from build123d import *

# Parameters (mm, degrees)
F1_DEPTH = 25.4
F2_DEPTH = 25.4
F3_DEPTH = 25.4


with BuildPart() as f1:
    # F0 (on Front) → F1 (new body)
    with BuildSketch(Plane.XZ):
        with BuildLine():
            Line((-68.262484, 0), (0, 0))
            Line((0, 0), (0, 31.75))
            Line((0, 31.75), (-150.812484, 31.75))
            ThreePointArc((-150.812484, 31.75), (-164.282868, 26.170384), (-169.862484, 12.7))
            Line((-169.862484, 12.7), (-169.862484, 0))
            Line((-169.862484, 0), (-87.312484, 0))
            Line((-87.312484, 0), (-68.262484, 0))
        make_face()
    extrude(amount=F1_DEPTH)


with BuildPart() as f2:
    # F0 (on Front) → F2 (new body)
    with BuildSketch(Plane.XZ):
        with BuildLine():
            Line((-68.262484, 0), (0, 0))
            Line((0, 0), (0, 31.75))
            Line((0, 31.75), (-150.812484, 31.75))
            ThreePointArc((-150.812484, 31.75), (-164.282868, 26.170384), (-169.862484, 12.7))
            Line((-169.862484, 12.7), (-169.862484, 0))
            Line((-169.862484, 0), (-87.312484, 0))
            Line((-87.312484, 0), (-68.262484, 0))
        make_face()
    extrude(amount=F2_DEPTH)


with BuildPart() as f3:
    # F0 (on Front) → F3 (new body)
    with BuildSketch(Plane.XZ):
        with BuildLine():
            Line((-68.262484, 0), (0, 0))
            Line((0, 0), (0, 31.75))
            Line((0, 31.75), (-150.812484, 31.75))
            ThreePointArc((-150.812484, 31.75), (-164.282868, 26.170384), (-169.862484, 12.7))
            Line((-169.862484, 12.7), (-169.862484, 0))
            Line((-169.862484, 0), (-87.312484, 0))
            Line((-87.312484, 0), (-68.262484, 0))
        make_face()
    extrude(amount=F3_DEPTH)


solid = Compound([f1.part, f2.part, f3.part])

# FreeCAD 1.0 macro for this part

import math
import FreeCAD as App
import Part
import Sketcher
Q = App.Units.Quantity

doc = App.newDocument("Part")
body = doc.addObject("PartDesign::Body", "Body")

# Sketch on XZ plane
sketch1 = body.newObject("Sketcher::SketchObject", "Sketch")
sketch1.AttachmentSupport = (doc.getObject("XZ_Plane"), [""])
sketch1.MapMode = "FlatFace"
sketch1.addGeometry([
    Part.LineSegment(App.Vector(0, 0, 0), App.Vector(0, 32, 0)),  # 0
    Part.LineSegment(App.Vector(0, 32, 0), App.Vector(-151, 32, 0)),  # 1
    Part.ArcOfCircle(Part.Circle(App.Vector(-151, 13, 0), App.Vector(0, 0, 1), 19), math.radians(90), math.radians(180)),  # 2
    Part.LineSegment(App.Vector(-170, 13, 0), App.Vector(-170, 0, 0)),  # 3
    Part.LineSegment(App.Vector(-170, 0, 0), App.Vector(0, 0, 0)),  # 4
], False)
sketch1.addConstraint([
    Sketcher.Constraint("Coincident", 0, 2, 1, 1),
    Sketcher.Constraint("Tangent", 1, 2, 2, 1),
    Sketcher.Constraint("Tangent", 2, 2, 3, 1),
    Sketcher.Constraint("Coincident", 3, 2, 4, 1),
    Sketcher.Constraint("Coincident", 4, 2, 0, 1),
    Sketcher.Constraint("Vertical", 0),
    Sketcher.Constraint("Horizontal", 1),
    Sketcher.Constraint("Vertical", 3),
    Sketcher.Constraint("Horizontal", 4),
    Sketcher.Constraint("Coincident", 4, 2, -1, 1),
    Sketcher.Constraint("Radius", 2, Q("0.75 in")),
    Sketcher.Constraint("DistanceY", 3, 2, 3, 1, Q("0.5 in")),
    Sketcher.Constraint("DistanceX", 1, 2, 1, 1, Q("150.812484 mm")),
])
pad1 = body.newObject("PartDesign::Pad", "Pad")
pad1.Profile = sketch1
pad1.Length = Q("1 in")
body2 = doc.addObject("PartDesign::Body", "Body001")

# Sketch on XZ plane
sketch2 = body2.newObject("Sketcher::SketchObject", "Sketch001")
sketch2.AttachmentSupport = (doc.getObject("XZ_Plane001"), [""])
sketch2.MapMode = "FlatFace"
sketch2.addGeometry([
    Part.LineSegment(App.Vector(0, 0, 0), App.Vector(0, 32, 0)),  # 0
    Part.LineSegment(App.Vector(0, 32, 0), App.Vector(-151, 32, 0)),  # 1
    Part.ArcOfCircle(Part.Circle(App.Vector(-151, 13, 0), App.Vector(0, 0, 1), 19), math.radians(90), math.radians(180)),  # 2
    Part.LineSegment(App.Vector(-170, 13, 0), App.Vector(-170, 0, 0)),  # 3
    Part.LineSegment(App.Vector(-170, 0, 0), App.Vector(0, 0, 0)),  # 4
], False)
sketch2.addConstraint([
    Sketcher.Constraint("Coincident", 0, 2, 1, 1),
    Sketcher.Constraint("Tangent", 1, 2, 2, 1),
    Sketcher.Constraint("Tangent", 2, 2, 3, 1),
    Sketcher.Constraint("Coincident", 3, 2, 4, 1),
    Sketcher.Constraint("Coincident", 4, 2, 0, 1),
    Sketcher.Constraint("Vertical", 0),
    Sketcher.Constraint("Horizontal", 1),
    Sketcher.Constraint("Vertical", 3),
    Sketcher.Constraint("Horizontal", 4),
    Sketcher.Constraint("Coincident", 4, 2, -1, 1),
    Sketcher.Constraint("Radius", 2, Q("0.75 in")),
    Sketcher.Constraint("DistanceY", 3, 2, 3, 1, Q("0.5 in")),
    Sketcher.Constraint("DistanceX", 1, 2, 1, 1, Q("150.812484 mm")),
])
pad2 = body2.newObject("PartDesign::Pad", "Pad001")
pad2.Profile = sketch2
pad2.Length = Q("1 in")
body3 = doc.addObject("PartDesign::Body", "Body002")

# Sketch on XZ plane
sketch3 = body3.newObject("Sketcher::SketchObject", "Sketch002")
sketch3.AttachmentSupport = (doc.getObject("XZ_Plane002"), [""])
sketch3.MapMode = "FlatFace"
sketch3.addGeometry([
    Part.LineSegment(App.Vector(0, 0, 0), App.Vector(0, 32, 0)),  # 0
    Part.LineSegment(App.Vector(0, 32, 0), App.Vector(-151, 32, 0)),  # 1
    Part.ArcOfCircle(Part.Circle(App.Vector(-151, 13, 0), App.Vector(0, 0, 1), 19), math.radians(90), math.radians(180)),  # 2
    Part.LineSegment(App.Vector(-170, 13, 0), App.Vector(-170, 0, 0)),  # 3
    Part.LineSegment(App.Vector(-170, 0, 0), App.Vector(0, 0, 0)),  # 4
], False)
sketch3.addConstraint([
    Sketcher.Constraint("Coincident", 0, 2, 1, 1),
    Sketcher.Constraint("Tangent", 1, 2, 2, 1),
    Sketcher.Constraint("Tangent", 2, 2, 3, 1),
    Sketcher.Constraint("Coincident", 3, 2, 4, 1),
    Sketcher.Constraint("Coincident", 4, 2, 0, 1),
    Sketcher.Constraint("Vertical", 0),
    Sketcher.Constraint("Horizontal", 1),
    Sketcher.Constraint("Vertical", 3),
    Sketcher.Constraint("Horizontal", 4),
    Sketcher.Constraint("Coincident", 4, 2, -1, 1),
    Sketcher.Constraint("Radius", 2, Q("0.75 in")),
    Sketcher.Constraint("DistanceY", 3, 2, 3, 1, Q("0.5 in")),
    Sketcher.Constraint("DistanceX", 1, 2, 1, 1, Q("150.812484 mm")),
])
pad3 = body3.newObject("PartDesign::Pad", "Pad002")
pad3.Profile = sketch3
pad3.Length = Q("1 in")

doc.recompute()
